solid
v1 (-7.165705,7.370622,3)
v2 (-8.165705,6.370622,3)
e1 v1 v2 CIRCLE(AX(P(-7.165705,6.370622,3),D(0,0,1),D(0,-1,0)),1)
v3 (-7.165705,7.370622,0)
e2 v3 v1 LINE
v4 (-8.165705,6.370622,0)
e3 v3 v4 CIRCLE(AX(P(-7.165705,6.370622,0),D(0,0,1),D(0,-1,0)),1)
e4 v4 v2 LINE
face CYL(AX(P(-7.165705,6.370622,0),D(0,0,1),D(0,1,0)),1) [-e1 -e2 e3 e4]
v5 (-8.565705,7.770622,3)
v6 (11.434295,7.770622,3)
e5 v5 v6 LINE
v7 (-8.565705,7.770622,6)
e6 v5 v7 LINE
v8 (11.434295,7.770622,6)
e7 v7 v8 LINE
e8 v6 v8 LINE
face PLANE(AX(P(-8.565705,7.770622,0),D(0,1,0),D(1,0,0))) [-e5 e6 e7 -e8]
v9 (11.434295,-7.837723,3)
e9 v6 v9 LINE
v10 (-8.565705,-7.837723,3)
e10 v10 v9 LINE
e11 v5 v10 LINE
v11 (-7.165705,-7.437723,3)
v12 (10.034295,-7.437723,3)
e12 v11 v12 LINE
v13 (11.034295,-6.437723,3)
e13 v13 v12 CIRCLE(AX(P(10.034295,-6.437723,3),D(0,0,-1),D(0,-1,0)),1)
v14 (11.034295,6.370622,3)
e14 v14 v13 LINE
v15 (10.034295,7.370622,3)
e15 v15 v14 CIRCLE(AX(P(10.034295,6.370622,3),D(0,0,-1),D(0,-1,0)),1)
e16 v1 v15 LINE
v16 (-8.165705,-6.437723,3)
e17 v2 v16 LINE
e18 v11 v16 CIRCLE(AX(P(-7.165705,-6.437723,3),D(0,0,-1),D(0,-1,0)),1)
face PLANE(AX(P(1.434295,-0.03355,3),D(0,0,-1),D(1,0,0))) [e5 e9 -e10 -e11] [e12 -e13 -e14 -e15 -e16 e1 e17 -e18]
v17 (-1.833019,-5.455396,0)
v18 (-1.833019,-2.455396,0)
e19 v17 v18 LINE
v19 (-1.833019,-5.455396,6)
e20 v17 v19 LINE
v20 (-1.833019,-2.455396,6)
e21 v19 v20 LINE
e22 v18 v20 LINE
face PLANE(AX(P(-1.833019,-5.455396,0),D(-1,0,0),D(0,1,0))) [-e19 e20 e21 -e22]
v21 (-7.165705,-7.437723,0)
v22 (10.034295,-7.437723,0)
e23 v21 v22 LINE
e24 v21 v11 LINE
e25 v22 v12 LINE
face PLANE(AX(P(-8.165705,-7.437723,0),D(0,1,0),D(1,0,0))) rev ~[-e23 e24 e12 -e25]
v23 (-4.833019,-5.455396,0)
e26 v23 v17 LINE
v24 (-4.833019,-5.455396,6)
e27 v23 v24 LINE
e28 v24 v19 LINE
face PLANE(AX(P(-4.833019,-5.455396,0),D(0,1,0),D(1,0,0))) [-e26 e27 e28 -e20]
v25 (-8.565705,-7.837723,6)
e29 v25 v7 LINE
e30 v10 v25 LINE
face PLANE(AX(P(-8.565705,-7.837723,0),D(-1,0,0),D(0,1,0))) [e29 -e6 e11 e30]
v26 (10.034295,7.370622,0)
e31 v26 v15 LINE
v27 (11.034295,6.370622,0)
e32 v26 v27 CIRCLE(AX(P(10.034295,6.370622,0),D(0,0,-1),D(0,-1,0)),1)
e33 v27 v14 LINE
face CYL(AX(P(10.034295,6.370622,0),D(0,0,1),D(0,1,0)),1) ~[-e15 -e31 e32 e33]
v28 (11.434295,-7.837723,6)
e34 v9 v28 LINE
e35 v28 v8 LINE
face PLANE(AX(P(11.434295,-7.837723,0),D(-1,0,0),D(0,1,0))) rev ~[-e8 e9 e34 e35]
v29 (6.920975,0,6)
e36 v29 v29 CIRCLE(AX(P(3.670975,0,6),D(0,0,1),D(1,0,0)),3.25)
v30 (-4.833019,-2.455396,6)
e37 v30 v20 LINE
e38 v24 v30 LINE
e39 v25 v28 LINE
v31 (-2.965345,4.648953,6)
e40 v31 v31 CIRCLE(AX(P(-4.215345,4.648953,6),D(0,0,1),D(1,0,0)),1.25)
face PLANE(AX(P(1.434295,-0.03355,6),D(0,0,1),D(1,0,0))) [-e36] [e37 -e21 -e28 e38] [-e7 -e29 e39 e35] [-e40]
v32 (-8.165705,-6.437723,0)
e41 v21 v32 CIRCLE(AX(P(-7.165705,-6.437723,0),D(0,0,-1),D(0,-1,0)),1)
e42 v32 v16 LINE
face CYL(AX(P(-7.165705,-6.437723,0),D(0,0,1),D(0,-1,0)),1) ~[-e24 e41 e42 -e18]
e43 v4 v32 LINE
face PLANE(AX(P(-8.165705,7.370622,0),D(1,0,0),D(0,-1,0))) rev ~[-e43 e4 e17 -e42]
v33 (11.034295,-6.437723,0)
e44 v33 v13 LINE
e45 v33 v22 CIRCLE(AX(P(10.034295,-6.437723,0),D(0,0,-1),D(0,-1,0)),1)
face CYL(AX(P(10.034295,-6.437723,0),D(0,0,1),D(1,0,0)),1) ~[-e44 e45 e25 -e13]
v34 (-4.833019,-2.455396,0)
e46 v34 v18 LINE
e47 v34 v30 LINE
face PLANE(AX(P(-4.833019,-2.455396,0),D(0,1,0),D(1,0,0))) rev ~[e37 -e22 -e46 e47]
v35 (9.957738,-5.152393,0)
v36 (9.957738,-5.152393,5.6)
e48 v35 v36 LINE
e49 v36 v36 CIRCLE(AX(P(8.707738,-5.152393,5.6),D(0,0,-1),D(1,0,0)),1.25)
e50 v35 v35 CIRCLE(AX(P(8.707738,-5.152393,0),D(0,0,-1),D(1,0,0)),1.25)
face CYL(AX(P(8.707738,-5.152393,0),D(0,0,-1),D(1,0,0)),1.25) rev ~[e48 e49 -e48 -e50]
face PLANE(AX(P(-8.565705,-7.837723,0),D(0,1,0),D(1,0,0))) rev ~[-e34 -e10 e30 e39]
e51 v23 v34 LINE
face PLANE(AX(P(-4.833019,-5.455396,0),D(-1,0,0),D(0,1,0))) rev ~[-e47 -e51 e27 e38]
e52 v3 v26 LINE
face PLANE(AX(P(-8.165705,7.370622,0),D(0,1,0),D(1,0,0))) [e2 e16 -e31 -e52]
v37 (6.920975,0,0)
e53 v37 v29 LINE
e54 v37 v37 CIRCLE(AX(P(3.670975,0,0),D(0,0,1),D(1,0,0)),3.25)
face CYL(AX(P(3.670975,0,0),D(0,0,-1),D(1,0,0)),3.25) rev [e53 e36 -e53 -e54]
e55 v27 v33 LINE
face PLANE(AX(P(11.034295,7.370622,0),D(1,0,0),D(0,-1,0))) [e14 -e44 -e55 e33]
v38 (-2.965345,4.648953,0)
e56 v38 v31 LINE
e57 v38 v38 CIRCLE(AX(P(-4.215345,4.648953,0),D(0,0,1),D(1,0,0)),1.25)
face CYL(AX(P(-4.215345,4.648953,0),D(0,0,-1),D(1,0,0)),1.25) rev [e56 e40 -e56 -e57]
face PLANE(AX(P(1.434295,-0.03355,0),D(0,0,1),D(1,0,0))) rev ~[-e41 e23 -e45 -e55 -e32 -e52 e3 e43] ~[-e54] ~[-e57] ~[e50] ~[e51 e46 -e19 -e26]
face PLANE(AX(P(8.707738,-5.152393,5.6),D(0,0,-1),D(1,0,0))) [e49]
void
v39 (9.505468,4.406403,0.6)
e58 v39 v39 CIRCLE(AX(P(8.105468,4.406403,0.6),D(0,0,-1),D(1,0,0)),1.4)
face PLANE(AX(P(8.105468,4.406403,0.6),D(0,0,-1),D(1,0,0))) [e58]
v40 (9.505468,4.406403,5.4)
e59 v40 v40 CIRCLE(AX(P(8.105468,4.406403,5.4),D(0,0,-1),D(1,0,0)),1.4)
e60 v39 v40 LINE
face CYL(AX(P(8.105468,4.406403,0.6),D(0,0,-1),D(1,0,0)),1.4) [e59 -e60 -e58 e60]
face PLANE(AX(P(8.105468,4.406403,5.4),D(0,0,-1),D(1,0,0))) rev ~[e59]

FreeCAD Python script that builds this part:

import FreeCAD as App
import Part
import Sketcher
Q = App.Units.Quantity


def edges_at(feature, points):
    """Names of the edges that pass closest to the given points."""
    edges = feature.Shape.Edges
    near = lambda p: min(range(len(edges)), key=lambda i: edges[i].distToShape(Part.Vertex(*p))[0])
    return sorted({f"Edge{near(p) + 1}" for p in points})


def add_polygon(sketch, points):
    """Adds a closed chain of lines whose ends are joined by coincident constraints."""
    first, n = sketch.GeometryCount, len(points)
    for a, b in zip(points, points[1:] + points[:1]):
        sketch.addGeometry(Part.LineSegment(App.Vector(*a, 0), App.Vector(*b, 0)), False)
    for i in range(n):
        sketch.addConstraint(Sketcher.Constraint("Coincident", first + i, 2, first + (i + 1) % n, 1))

doc = App.newDocument("Part")
params = doc.addObject("Spreadsheet::Sheet", "Params")
for row, (alias, value) in enumerate([
    ("sketch1_diameter", "6.5 mm"),
    ("sketch1_diameter2", "2.5 mm"),
    ("sketch1_width", "20 mm"),
    ("sketch1_width2", "3 mm"),
    ("pad1_length", "6 mm"),
    ("sketch2_diameter", "2.5 mm"),
    ("pocket1_length", "5.6 mm"),
    ("sketch3_width", "20 mm"),
    ("sketch3_width2", "19.2 mm"),
    ("pocket2_length", "3 mm"),
    ("sketch4_diameter", "2.8 mm"),
    ("pocket3_length", "4.8 mm"),
    ("fillet_radius", "1 mm"),
], start=1):
    params.set(f"A{row}", alias)
    params.set(f"B{row}", "=" + value)
    params.setAlias(f"B{row}", alias)

body = doc.addObject("PartDesign::Body", "Body")

# Sketch on XY plane
sketch1 = body.newObject("Sketcher::SketchObject", "Sketch")
sketch1.AttachmentSupport = (doc.getObject("XY_Plane"), [""])
sketch1.MapMode = "FlatFace"
add_polygon(sketch1, [(-8.6, 7.8), (-8.6, -7.8), (11.4, -7.8), (11.4, 7.8)])  # lines 0-3
add_polygon(sketch1, [(-1.8, -5.5), (-4.8, -5.5), (-4.8, -2.5), (-1.8, -2.5)])  # lines 4-7
sketch1.addGeometry(Part.Circle(App.Vector(3.7, 0, 0), App.Vector(0, 0, 1), 3.2), False)  # 8
sketch1.addGeometry(Part.Circle(App.Vector(-4.2, 4.6, 0), App.Vector(0, 0, 1), 1.2), False)  # 9
sketch1.addConstraint([
    Sketcher.Constraint("Vertical", 0),
    Sketcher.Constraint("Horizontal", 1),
    Sketcher.Constraint("Vertical", 2),
    Sketcher.Constraint("Horizontal", 3),
    Sketcher.Constraint("Horizontal", 4),
    Sketcher.Constraint("Vertical", 5),
    Sketcher.Constraint("Horizontal", 6),
    Sketcher.Constraint("Vertical", 7),
    Sketcher.Constraint("PointOnObject", 8, 3, -1),
    Sketcher.Constraint("Equal", 6, 5),
    Sketcher.Constraint("Diameter", 8, Q("6.5 mm")),
    Sketcher.Constraint("Diameter", 9, Q("2.5 mm")),
    Sketcher.Constraint("DistanceX", 1, 1, 1, 2, Q("20 mm")),
    Sketcher.Constraint("DistanceX", 4, 2, 4, 1, Q("3 mm")),
    Sketcher.Constraint("DistanceY", 0, 2, 0, 1, Q("15.608345 mm")),
    Sketcher.Constraint("DistanceX", 4, 2, -1, 1, Q("4.833019 mm")),
    Sketcher.Constraint("DistanceX", 9, 3, 8, 3, Q("7.88632 mm")),
    Sketcher.Constraint("DistanceX", 0, 2, 9, 3, Q("4.35036 mm")),
    Sketcher.Constraint("DistanceY", 9, 3, 2, 2, Q("3.121669 mm")),
    Sketcher.Constraint("DistanceY", 4, 2, 9, 3, Q("10.104349 mm")),
    Sketcher.Constraint("DistanceX", -1, 1, 8, 3, Q("3.670975 mm")),
    Sketcher.Constraint("DistanceY", -1, 1, 9, 3, Q("4.648953 mm")),
])
sketch1.setExpression("Constraints[18]", "Params.sketch1_diameter")
sketch1.setExpression("Constraints[19]", "Params.sketch1_diameter2")
sketch1.setExpression("Constraints[20]", "Params.sketch1_width")
sketch1.setExpression("Constraints[21]", "Params.sketch1_width2")
pad1 = body.newObject("PartDesign::Pad", "Pad")
pad1.Profile = sketch1
pad1.setExpression("Length", "Params.pad1_length")

# Sketch on XY plane
sketch2 = body.newObject("Sketcher::SketchObject", "Sketch001")
sketch2.AttachmentSupport = (doc.getObject("XY_Plane"), [""])
sketch2.MapMode = "FlatFace"
sketch2.addGeometry(Part.Circle(App.Vector(8.7, -5.2, 0), App.Vector(0, 0, 1), 1.2), False)
sketch2.addConstraint([
    Sketcher.Constraint("Diameter", 0, Q("2.5 mm")),
    Sketcher.Constraint("DistanceX", -1, 1, 0, 3, Q("8.707738 mm")),
    Sketcher.Constraint("DistanceY", 0, 3, -1, 1, Q("5.152393 mm")),
])
sketch2.setExpression("Constraints[0]", "Params.sketch2_diameter")
pocket1 = body.newObject("PartDesign::Pocket", "Pocket")
pocket1.Profile = sketch2
pocket1.setExpression("Length", "Params.pocket1_length")
pocket1.Reversed = True

# Sketch on XY plane
sketch3 = body.newObject("Sketcher::SketchObject", "Sketch002")
sketch3.AttachmentSupport = (doc.getObject("XY_Plane"), [""])
sketch3.MapMode = "FlatFace"
add_polygon(sketch3, [(-9, -8), (-9, 8), (11, 8), (11, -8)])  # lines 0-3
add_polygon(sketch3, [(11, 7), (-8, 7), (-8, -7), (11, -7)])  # lines 4-7
sketch3.addConstraint([
    Sketcher.Constraint("Vertical", 0),
    Sketcher.Constraint("Horizontal", 1),
    Sketcher.Constraint("Vertical", 2),
    Sketcher.Constraint("Horizontal", 3),
    Sketcher.Constraint("Horizontal", 4),
    Sketcher.Constraint("Vertical", 5),
    Sketcher.Constraint("Horizontal", 6),
    Sketcher.Constraint("Vertical", 7),
    Sketcher.Constraint("DistanceX", 1, 1, 1, 2, Q("20 mm")),
    Sketcher.Constraint("DistanceX", 4, 2, 4, 1, Q("19.2 mm")),
    Sketcher.Constraint("DistanceX", 0, 2, 4, 2, Q("0.4 mm")),
    Sketcher.Constraint("DistanceY", 4, 2, 0, 2, Q("0.4 mm")),
    Sketcher.Constraint("DistanceY", 3, 2, 5, 2, Q("0.4 mm")),
    Sketcher.Constraint("DistanceY", 0, 1, 0, 2, Q("15.608345 mm")),
    Sketcher.Constraint("DistanceX", 0, 2, -1, 1, Q("8.565705 mm")),
    Sketcher.Constraint("DistanceY", -1, 1, 0, 2, Q("7.770622 mm")),
])
sketch3.setExpression("Constraints[16]", "Params.sketch3_width")
sketch3.setExpression("Constraints[17]", "Params.sketch3_width2")
pocket2 = body.newObject("PartDesign::Pocket", "Pocket001")
pocket2.Profile = sketch3
pocket2.setExpression("Length", "Params.pocket2_length")
pocket2.Reversed = True

# Sketch on XY plane
sketch4 = body.newObject("Sketcher::SketchObject", "Sketch003")
sketch4.AttachmentSupport = (doc.getObject("XY_Plane"), [""])
sketch4.MapMode = "FlatFace"
sketch4.AttachmentOffset = App.Placement(App.Vector(0, 0, 0.6), App.Rotation())
sketch4.addGeometry(Part.Circle(App.Vector(8.1, 4.4, 0), App.Vector(0, 0, 1), 1.4), False)
sketch4.addConstraint([
    Sketcher.Constraint("Diameter", 0, Q("2.8 mm")),
    Sketcher.Constraint("DistanceX", -1, 1, 0, 3, Q("8.105468 mm")),
    Sketcher.Constraint("DistanceY", -1, 1, 0, 3, Q("4.406403 mm")),
])
sketch4.setExpression("Constraints[0]", "Params.sketch4_diameter")
pocket3 = body.newObject("PartDesign::Pocket", "Pocket002")
pocket3.Profile = sketch4
pocket3.setExpression("Length", "Params.pocket3_length")
pocket3.Reversed = True
doc.recompute()

fillet = body.newObject("PartDesign::Fillet", "Fillet")
fillet.Base = (pocket3, edges_at(pocket3, [
    (11.034, 7.371, 1.5),
    (-8.166, 7.371, 1.5),
    (-8.166, -7.438, 1.5),
    (11.034, -7.438, 1.5),
]))
fillet.setExpression("Radius", "Params.fillet_radius")

doc.recompute()
